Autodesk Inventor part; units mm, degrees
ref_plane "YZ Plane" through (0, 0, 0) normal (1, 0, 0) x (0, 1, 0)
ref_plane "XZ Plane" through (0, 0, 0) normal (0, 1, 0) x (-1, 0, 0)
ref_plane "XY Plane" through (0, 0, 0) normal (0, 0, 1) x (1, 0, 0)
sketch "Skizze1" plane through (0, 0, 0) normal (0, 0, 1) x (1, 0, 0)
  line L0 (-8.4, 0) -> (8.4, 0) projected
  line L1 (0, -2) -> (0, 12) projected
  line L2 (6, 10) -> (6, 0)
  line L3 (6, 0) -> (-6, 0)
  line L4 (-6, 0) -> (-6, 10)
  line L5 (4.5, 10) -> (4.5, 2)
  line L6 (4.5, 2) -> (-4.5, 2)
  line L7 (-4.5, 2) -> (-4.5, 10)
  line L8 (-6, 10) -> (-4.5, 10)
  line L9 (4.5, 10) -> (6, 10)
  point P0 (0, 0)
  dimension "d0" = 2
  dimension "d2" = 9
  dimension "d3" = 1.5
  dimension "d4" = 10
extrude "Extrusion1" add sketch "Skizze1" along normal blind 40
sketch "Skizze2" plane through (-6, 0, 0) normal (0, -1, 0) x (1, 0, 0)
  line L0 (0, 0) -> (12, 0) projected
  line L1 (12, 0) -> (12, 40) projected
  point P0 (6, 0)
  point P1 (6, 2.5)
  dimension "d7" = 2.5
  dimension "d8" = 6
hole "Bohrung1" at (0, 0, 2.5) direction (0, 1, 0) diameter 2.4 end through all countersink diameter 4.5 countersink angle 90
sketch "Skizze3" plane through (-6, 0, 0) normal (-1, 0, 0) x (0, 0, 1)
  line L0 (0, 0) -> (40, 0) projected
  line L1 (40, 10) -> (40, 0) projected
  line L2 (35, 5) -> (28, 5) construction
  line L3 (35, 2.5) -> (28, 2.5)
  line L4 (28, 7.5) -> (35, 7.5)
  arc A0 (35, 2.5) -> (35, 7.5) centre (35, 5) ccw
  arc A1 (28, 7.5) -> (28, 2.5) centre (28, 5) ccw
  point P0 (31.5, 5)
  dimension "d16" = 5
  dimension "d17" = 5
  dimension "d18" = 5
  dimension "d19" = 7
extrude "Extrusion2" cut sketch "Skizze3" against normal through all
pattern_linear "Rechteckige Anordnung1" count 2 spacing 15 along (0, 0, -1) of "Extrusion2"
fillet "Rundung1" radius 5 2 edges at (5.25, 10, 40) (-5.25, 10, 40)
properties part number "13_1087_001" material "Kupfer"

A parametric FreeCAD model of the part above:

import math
import FreeCAD as App
import Part
import Sketcher

V = App.Vector
Q = App.Units.Quantity


def edges_at(feature, points):
    """Names of the edges that pass closest to the given points."""
    edges = feature.Shape.Edges
    near = lambda p: min(range(len(edges)), key=lambda i: edges[i].distToShape(Part.Vertex(*p))[0])
    return sorted({f"Edge{near(p) + 1}" for p in points})


def add_polygon(sketch, points):
    """Adds a closed chain of lines whose ends are joined by coincident constraints."""
    first, n = sketch.GeometryCount, len(points)
    for a, b in zip(points, points[1:] + points[:1]):
        sketch.addGeometry(Part.LineSegment(App.Vector(*a, 0), App.Vector(*b, 0)), False)
    for i in range(n):
        sketch.addConstraint(Sketcher.Constraint("Coincident", first + i, 2, first + (i + 1) % n, 1))

doc = App.newDocument("Part")
body = doc.addObject("PartDesign::Body", "Body")

# Sketch on XY plane
sketch1 = body.newObject("Sketcher::SketchObject", "Sketch")
sketch1.AttachmentSupport = (doc.getObject("XY_Plane"), [""])
sketch1.MapMode = "FlatFace"
add_polygon(sketch1, [(-6, 10), (-6, 0), (6, 0), (6, 10), (4.5, 10), (4.5, 2), (-4.5, 2), (-4.5, 10)])  # lines 0-7
sketch1.addConstraint(Sketcher.Constraint("Vertical", 0))
sketch1.addConstraint(Sketcher.Constraint("Horizontal", 1))
sketch1.addConstraint(Sketcher.Constraint("Vertical", 2))
sketch1.addConstraint(Sketcher.Constraint("Horizontal", 3))
sketch1.addConstraint(Sketcher.Constraint("Vertical", 4))
sketch1.addConstraint(Sketcher.Constraint("Horizontal", 5))
sketch1.addConstraint(Sketcher.Constraint("Vertical", 6))
sketch1.addConstraint(Sketcher.Constraint("Horizontal", 7))
sketch1.addConstraint(Sketcher.Constraint("Symmetric", 0, 2, 1, 2, -1, 1))
sketch1.addConstraint(Sketcher.Constraint("Symmetric", 3, 2, 6, 2, -2))
sketch1.addConstraint(Sketcher.Constraint("DistanceX", 5, 2, 5, 1, Q("9 mm")))
sketch1.addConstraint(Sketcher.Constraint("DistanceY", 0, 2, 0, 1, Q("10 mm")))
sketch1.addConstraint(Sketcher.Constraint("DistanceX", 3, 2, 3, 1, Q("1.5 mm")))
sketch1.addConstraint(Sketcher.Constraint("DistanceY", -1, 1, 4, 2, Q("2 mm")))
pad1 = body.newObject("PartDesign::Pad", "Pad")
pad1.Profile = sketch1
pad1.Length = 40

# Sketch on XZ plane
sketch2 = body.newObject("Sketcher::SketchObject", "Sketch001")
sketch2.AttachmentSupport = (doc.getObject("XZ_Plane"), [""])
sketch2.MapMode = "FlatFace"
sketch2.addGeometry(Part.Circle(V(0, 2.5, 0), V(0, 0, 1), 1.2), False)
sketch2.addConstraint(Sketcher.Constraint("PointOnObject", 0, 3, -2))
sketch2.addConstraint(Sketcher.Constraint("Diameter", 0, Q("2.4 mm")))
sketch2.addConstraint(Sketcher.Constraint("DistanceY", -1, 1, 0, 3, Q("2.5 mm")))
doc.recompute()
hole = body.newObject("PartDesign::Hole", "Hole")
hole.Profile = sketch2
hole.ThreadType = "None"
hole.Diameter = 2.4
hole.DepthType = "ThroughAll"
hole.HoleCutType = "Countersink"
hole.HoleCutDiameter = 4.5
hole.HoleCutCountersinkAngle = 90

# Sketch on YZ plane
sketch3 = body.newObject("Sketcher::SketchObject", "Sketch002")
sketch3.AttachmentSupport = (doc.getObject("YZ_Plane"), [""])
sketch3.MapMode = "FlatFace"
sketch3.AttachmentOffset = App.Placement(V(0, 0, -6), App.Rotation())
sketch3.addGeometry(Part.LineSegment(V(2.5, 28, 0), V(2.5, 35, 0)), False)
sketch3.addGeometry(Part.ArcOfCircle(Part.Circle(V(5, 35, 0), V(0, 0, 1), 2.5), math.radians(0), math.radians(180)), False)
sketch3.addGeometry(Part.LineSegment(V(7.5, 35, 0), V(7.5, 28, 0)), False)
sketch3.addGeometry(Part.ArcOfCircle(Part.Circle(V(5, 28, 0), V(0, 0, 1), 2.5), math.radians(180), math.radians(360)), False)
sketch3.addConstraint(Sketcher.Constraint("Tangent", 0, 2, 1, 2))
sketch3.addConstraint(Sketcher.Constraint("Tangent", 1, 1, 2, 1))
sketch3.addConstraint(Sketcher.Constraint("Tangent", 2, 2, 3, 2))
sketch3.addConstraint(Sketcher.Constraint("Tangent", 3, 1, 0, 1))
sketch3.addConstraint(Sketcher.Constraint("Vertical", 0))
sketch3.addConstraint(Sketcher.Constraint("Vertical", 2))
sketch3.addConstraint(Sketcher.Constraint("Radius", 1, Q("2.5 mm")))
sketch3.addConstraint(Sketcher.Constraint("DistanceY", 0, 1, 0, 2, Q("7 mm")))
sketch3.addConstraint(Sketcher.Constraint("DistanceX", -1, 1, 1, 3, Q("5 mm")))
sketch3.addConstraint(Sketcher.Constraint("DistanceY", -1, 1, 1, 3, Q("35 mm")))
pocket1 = body.newObject("PartDesign::Pocket", "Pocket")
pocket1.Profile = sketch3
pocket1.Type = "ThroughAll"
pocket1.Reversed = True
doc.recompute()

linearpattern = body.newObject("PartDesign::LinearPattern", "LinearPattern")
linearpattern.Originals = [pocket1]
linearpattern.Direction = (doc.getObject("Z_Axis"), [""])
linearpattern.Mode = "offset"
linearpattern.Offset = 15
linearpattern.Occurrences = 2
linearpattern.Reversed = True
body.Tip = linearpattern
doc.recompute()

fillet = body.newObject("PartDesign::Fillet", "Fillet")
fillet.Base = (linearpattern, edges_at(linearpattern, [(5.25, 10, 40), (-5.25, 10, 40)]))
fillet.Radius = 5

doc.recompute()
